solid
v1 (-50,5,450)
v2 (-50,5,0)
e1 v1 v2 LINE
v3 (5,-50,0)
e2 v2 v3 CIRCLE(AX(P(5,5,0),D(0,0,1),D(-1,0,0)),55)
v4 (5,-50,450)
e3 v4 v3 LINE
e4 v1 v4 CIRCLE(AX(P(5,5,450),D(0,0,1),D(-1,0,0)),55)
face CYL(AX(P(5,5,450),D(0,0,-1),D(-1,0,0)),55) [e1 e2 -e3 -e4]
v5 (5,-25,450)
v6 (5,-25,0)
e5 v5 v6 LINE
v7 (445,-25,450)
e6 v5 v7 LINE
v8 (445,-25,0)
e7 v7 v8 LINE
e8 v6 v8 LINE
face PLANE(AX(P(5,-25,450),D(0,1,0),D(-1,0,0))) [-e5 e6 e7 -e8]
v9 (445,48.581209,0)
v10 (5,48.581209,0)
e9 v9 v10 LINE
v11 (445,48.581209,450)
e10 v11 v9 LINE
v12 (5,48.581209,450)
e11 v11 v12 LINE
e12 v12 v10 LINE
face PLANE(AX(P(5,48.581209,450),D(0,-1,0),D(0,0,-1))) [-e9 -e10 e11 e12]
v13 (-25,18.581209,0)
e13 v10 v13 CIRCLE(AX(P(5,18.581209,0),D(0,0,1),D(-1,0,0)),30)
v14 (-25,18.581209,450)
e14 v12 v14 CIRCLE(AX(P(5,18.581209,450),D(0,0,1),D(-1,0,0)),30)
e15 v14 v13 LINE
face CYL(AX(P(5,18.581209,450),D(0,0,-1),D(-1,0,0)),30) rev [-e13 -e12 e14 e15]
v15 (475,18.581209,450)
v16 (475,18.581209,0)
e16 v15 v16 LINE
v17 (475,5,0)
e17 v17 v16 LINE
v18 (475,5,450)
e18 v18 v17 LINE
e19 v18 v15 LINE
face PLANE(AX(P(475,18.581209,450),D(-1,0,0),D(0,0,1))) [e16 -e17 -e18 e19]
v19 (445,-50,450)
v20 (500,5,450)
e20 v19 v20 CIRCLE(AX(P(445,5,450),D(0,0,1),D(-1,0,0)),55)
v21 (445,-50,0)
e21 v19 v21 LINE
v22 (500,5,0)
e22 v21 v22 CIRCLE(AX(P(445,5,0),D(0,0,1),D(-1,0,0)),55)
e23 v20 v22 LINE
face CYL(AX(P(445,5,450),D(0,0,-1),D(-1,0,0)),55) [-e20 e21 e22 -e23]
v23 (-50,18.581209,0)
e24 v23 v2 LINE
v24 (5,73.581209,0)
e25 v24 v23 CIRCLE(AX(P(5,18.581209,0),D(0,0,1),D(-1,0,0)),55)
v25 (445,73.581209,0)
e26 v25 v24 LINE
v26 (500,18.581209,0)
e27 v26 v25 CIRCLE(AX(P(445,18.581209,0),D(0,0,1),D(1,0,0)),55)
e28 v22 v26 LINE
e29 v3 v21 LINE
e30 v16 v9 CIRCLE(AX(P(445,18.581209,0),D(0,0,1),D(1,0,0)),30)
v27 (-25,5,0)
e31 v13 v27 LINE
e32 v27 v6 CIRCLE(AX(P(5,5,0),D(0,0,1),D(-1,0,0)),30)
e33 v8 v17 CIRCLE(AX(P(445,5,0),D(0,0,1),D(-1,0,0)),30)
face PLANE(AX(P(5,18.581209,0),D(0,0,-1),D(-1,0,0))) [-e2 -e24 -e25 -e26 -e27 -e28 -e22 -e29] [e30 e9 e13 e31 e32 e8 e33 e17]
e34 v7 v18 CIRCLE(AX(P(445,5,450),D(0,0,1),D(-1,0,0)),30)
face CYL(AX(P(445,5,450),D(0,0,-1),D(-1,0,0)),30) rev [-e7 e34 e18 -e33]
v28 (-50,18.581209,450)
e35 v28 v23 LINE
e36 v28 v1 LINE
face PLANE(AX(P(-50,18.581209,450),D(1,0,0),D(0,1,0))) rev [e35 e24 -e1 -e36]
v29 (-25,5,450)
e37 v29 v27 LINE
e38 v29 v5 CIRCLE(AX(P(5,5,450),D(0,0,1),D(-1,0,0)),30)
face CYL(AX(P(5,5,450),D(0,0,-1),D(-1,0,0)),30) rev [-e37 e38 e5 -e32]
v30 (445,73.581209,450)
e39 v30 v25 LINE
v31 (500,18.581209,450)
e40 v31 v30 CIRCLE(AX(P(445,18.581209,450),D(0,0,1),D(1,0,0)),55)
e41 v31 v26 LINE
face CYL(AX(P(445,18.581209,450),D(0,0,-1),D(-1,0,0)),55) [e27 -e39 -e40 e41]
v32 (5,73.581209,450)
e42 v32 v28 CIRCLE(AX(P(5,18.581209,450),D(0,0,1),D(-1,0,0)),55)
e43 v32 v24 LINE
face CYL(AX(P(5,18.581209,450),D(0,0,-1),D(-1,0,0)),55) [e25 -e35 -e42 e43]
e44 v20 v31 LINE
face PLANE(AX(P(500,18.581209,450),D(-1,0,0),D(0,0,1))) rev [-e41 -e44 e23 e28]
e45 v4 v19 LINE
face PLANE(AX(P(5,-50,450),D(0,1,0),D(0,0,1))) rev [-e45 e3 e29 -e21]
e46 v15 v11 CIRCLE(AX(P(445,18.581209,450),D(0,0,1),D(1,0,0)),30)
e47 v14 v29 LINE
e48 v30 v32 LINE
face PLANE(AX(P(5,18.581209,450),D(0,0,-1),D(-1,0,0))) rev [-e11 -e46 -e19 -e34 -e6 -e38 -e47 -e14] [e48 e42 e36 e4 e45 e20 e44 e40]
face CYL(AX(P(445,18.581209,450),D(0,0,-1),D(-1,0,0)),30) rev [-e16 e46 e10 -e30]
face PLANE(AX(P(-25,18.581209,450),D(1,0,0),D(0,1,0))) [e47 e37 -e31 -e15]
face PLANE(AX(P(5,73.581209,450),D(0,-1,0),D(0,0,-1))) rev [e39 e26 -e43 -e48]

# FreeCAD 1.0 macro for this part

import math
import FreeCAD as App
import Part
import Sketcher
from FreeCAD import Vector
Q = App.Units.Quantity

doc = App.newDocument("Part")
params = doc.addObject("Spreadsheet::Sheet", "Params")
for row, (alias, value) in enumerate([
    ("sketch1_radius", "55 mm"),
    ("sketch1_radius2", "30 mm"),
    ("sketch1_width", "440 mm"),
    ("pad1_length", "450 mm"),
], start=1):
    params.set(f"A{row}", alias)
    params.set(f"B{row}", "=" + value)
    params.setAlias(f"B{row}", alias)

body = doc.addObject("PartDesign::Body", "Body")

sketch1 = body.newObject("Sketcher::SketchObject", "Sketch")
sketch1.AttachmentSupport = (doc.getObject("XY_Plane"), [""])
sketch1.MapMode = "FlatFace"
sketch1.addGeometry(Part.LineSegment(Vector(445, 73.581209, 0), Vector(5, 73.581209, 0)), False)
sketch1.addGeometry(Part.ArcOfCircle(Part.Circle(Vector(5, 18.581209, 0), Vector(0, 0, 1), 55), math.radians(90), math.radians(180)), False)
sketch1.addGeometry(Part.LineSegment(Vector(-50, 18.581209, 0), Vector(-50, 5, 0)), False)
sketch1.addGeometry(Part.ArcOfCircle(Part.Circle(Vector(5, 5, 0), Vector(0, 0, 1), 55), math.radians(-180), math.radians(-90)), False)
sketch1.addGeometry(Part.LineSegment(Vector(5, -50, 0), Vector(445, -50, 0)), False)
sketch1.addGeometry(Part.ArcOfCircle(Part.Circle(Vector(445, 5, 0), Vector(0, 0, 1), 55), math.radians(-90), math.radians(0)), False)
sketch1.addGeometry(Part.LineSegment(Vector(500, 5, 0), Vector(500, 18.581209, 0)), False)
sketch1.addGeometry(Part.ArcOfCircle(Part.Circle(Vector(445, 18.581209, 0), Vector(0, 0, 1), 55), math.radians(0), math.radians(90)), False)
sketch1.addGeometry(Part.LineSegment(Vector(5, 48.581209, 0), Vector(445, 48.581209, 0)), False)
sketch1.addGeometry(Part.ArcOfCircle(Part.Circle(Vector(445, 18.581209, 0), Vector(0, 0, 1), 30), math.radians(0), math.radians(90)), False)
sketch1.addGeometry(Part.LineSegment(Vector(475, 18.581209, 0), Vector(475, 5, 0)), False)
sketch1.addGeometry(Part.ArcOfCircle(Part.Circle(Vector(445, 5, 0), Vector(0, 0, 1), 30), math.radians(-90), math.radians(0)), False)
sketch1.addGeometry(Part.LineSegment(Vector(445, -25, 0), Vector(5, -25, 0)), False)
sketch1.addGeometry(Part.ArcOfCircle(Part.Circle(Vector(5, 5, 0), Vector(0, 0, 1), 30), math.radians(180), math.radians(270)), False)
sketch1.addGeometry(Part.LineSegment(Vector(-25, 5, 0), Vector(-25, 18.581209, 0)), False)
sketch1.addGeometry(Part.ArcOfCircle(Part.Circle(Vector(5, 18.581209, 0), Vector(0, 0, 1), 30), math.radians(90), math.radians(180)), False)
sketch1.addConstraint(Sketcher.Constraint("Tangent", 0, 2, 1, 1))
sketch1.addConstraint(Sketcher.Constraint("Tangent", 1, 2, 2, 1))
sketch1.addConstraint(Sketcher.Constraint("Tangent", 2, 2, 3, 1))
sketch1.addConstraint(Sketcher.Constraint("Tangent", 3, 2, 4, 1))
sketch1.addConstraint(Sketcher.Constraint("Tangent", 4, 2, 5, 1))
sketch1.addConstraint(Sketcher.Constraint("Tangent", 5, 2, 6, 1))
sketch1.addConstraint(Sketcher.Constraint("Tangent", 6, 2, 7, 1))
sketch1.addConstraint(Sketcher.Constraint("Tangent", 7, 2, 0, 1))
sketch1.addConstraint(Sketcher.Constraint("Tangent", 8, 2, 9, 2))
sketch1.addConstraint(Sketcher.Constraint("Tangent", 9, 1, 10, 1))
sketch1.addConstraint(Sketcher.Constraint("Tangent", 10, 2, 11, 2))
sketch1.addConstraint(Sketcher.Constraint("Tangent", 11, 1, 12, 1))
sketch1.addConstraint(Sketcher.Constraint("Tangent", 12, 2, 13, 2))
sketch1.addConstraint(Sketcher.Constraint("Tangent", 13, 1, 14, 1))
sketch1.addConstraint(Sketcher.Constraint("Tangent", 14, 2, 15, 2))
sketch1.addConstraint(Sketcher.Constraint("Tangent", 15, 1, 8, 1))
sketch1.addConstraint(Sketcher.Constraint("Horizontal", 0))
sketch1.addConstraint(Sketcher.Constraint("Vertical", 2))
sketch1.addConstraint(Sketcher.Constraint("Horizontal", 4))
sketch1.addConstraint(Sketcher.Constraint("Vertical", 6))
sketch1.addConstraint(Sketcher.Constraint("Horizontal", 8))
sketch1.addConstraint(Sketcher.Constraint("Vertical", 10))
sketch1.addConstraint(Sketcher.Constraint("Horizontal", 12))
sketch1.addConstraint(Sketcher.Constraint("Vertical", 14))
sketch1.addConstraint(Sketcher.Constraint("Coincident", 9, 3, 7, 3))
sketch1.addConstraint(Sketcher.Constraint("Coincident", 11, 3, 5, 3))
sketch1.addConstraint(Sketcher.Constraint("Coincident", 13, 3, 3, 3))
sketch1.addConstraint(Sketcher.Constraint("Equal", 1, 3))
sketch1.addConstraint(Sketcher.Constraint("Equal", 3, 5))
sketch1.addConstraint(Sketcher.Constraint("Equal", 5, 7))
sketch1.addConstraint(Sketcher.Constraint("Equal", 13, 15))
sketch1.addConstraint(Sketcher.Constraint("Radius", 1, Q("55 mm")))
sketch1.addConstraint(Sketcher.Constraint("Radius", 9, Q("30 mm")))
sketch1.addConstraint(Sketcher.Constraint("DistanceX", 0, 2, 0, 1, Q("440 mm")))
sketch1.addConstraint(Sketcher.Constraint("DistanceX", -1, 1, 1, 3, Q("5 mm")))
sketch1.addConstraint(Sketcher.Constraint("DistanceY", -1, 1, 3, 3, Q("5 mm")))
sketch1.addConstraint(Sketcher.Constraint("DistanceY", 2, 2, 2, 1, Q("13.581209 mm")))
sketch1.setExpression("Constraints[31]", "Params.sketch1_radius")
sketch1.setExpression("Constraints[32]", "Params.sketch1_radius2")
sketch1.setExpression("Constraints[33]", "Params.sketch1_width")
pad1 = body.newObject("PartDesign::Pad", "Pad")
pad1.Profile = sketch1
pad1.setExpression("Length", "Params.pad1_length")

doc.recompute()
